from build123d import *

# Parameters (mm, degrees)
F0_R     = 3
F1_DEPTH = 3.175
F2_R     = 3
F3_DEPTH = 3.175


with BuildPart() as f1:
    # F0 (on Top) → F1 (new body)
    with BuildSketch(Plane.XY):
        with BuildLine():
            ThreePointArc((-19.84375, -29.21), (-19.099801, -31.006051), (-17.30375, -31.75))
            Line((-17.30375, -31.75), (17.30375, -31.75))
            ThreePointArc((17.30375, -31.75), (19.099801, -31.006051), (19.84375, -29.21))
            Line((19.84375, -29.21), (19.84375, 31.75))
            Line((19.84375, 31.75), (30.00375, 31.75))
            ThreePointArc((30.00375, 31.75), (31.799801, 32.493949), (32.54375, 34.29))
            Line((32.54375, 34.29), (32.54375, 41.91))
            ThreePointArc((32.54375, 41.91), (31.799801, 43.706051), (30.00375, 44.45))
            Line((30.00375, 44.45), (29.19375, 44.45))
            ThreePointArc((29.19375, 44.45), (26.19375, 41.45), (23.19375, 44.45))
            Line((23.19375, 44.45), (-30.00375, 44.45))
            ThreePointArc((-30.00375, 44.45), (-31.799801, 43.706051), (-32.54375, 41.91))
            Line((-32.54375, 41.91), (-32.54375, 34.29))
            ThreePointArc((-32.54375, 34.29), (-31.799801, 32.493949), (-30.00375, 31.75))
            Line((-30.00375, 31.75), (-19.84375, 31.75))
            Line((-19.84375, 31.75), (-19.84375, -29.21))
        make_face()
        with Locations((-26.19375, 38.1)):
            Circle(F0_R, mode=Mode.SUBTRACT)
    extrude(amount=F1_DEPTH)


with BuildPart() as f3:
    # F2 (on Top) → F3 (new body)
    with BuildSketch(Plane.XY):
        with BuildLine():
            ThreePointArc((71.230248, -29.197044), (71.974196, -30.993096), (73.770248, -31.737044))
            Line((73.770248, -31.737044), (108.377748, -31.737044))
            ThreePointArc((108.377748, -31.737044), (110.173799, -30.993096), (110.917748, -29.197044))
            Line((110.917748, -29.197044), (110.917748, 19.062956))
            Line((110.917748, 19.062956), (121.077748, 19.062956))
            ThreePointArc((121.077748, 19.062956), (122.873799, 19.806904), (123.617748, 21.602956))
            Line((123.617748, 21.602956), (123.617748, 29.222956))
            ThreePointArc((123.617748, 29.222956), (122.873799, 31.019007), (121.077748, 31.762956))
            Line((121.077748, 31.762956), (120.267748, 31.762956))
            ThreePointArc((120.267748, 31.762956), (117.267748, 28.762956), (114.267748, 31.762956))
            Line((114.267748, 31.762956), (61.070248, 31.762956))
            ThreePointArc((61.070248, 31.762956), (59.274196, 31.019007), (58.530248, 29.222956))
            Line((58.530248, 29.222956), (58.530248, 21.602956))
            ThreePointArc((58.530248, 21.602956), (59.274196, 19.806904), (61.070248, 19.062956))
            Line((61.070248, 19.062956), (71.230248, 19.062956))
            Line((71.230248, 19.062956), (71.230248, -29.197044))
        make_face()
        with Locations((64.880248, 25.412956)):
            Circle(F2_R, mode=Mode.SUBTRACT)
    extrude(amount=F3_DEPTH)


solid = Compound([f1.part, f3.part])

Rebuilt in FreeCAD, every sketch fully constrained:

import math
import FreeCAD as App
import Part
import Sketcher

V = App.Vector
Q = App.Units.Quantity

doc = App.newDocument("Part")
params = doc.addObject("Spreadsheet::Sheet", "Params")
for row, (alias, value) in enumerate([
    ("sketch1_radius", "0.1 in"),
    ("sketch1_width", "0.4 in"),
    ("sketch1_height", "2.4 in"),
    ("sketch1_height2", "0.3 in"),
    ("pad1_length", "0.125 in"),
    ("sketch2_radius", "0.0999999 in"),
    ("sketch2_width", "0.4 in"),
    ("sketch2_height", "1.9 in"),
    ("sketch2_height2", "0.3 in"),
    ("pad2_length", "0.125 in"),
], start=1):
    params.set(f"A{row}", alias)
    params.set(f"B{row}", "=" + value)
    params.setAlias(f"B{row}", alias)

body = doc.addObject("PartDesign::Body", "Body")

# Sketch on XY plane
sketch1 = doc.addObject("Sketcher::SketchObject", "Sketch")
body.addObject(sketch1)
sketch1.AttachmentSupport = (doc.XY_Plane, [""])
sketch1.MapMode = "FlatFace"
sketch1.addGeometry([
    Part.ArcOfCircle(Part.Circle(V(-17.3, -29.2, 0), V(0, 0, 1), 2.5), math.radians(-180), math.radians(-90)),  # 0
    Part.LineSegment(V(-17.3, -31.8, 0), V(17.3, -31.8, 0)),  # 1
    Part.ArcOfCircle(Part.Circle(V(17.3, -29.2, 0), V(0, 0, 1), 2.5), math.radians(-90), math.radians(0)),  # 2
    Part.LineSegment(V(19.8, -29.2, 0), V(19.8, 31.8, 0)),  # 3
    Part.LineSegment(V(19.8, 31.8, 0), V(30, 31.8, 0)),  # 4
    Part.ArcOfCircle(Part.Circle(V(30, 34.3, 0), V(0, 0, 1), 2.5), math.radians(-90), math.radians(0)),  # 5
    Part.LineSegment(V(32.5, 34.3, 0), V(32.5, 41.9, 0)),  # 6
    Part.ArcOfCircle(Part.Circle(V(30, 41.9, 0), V(0, 0, 1), 2.5), math.radians(0), math.radians(90)),  # 7
    Part.LineSegment(V(30, 44.5, 0), V(29.2, 44.5, 0)),  # 8
    Part.ArcOfCircle(Part.Circle(V(26.2, 44.5, 0), V(0, 0, 1), 3), math.radians(180), math.radians(360)),  # 9
    Part.LineSegment(V(23.2, 44.5, 0), V(-30, 44.5, 0)),  # 10
    Part.ArcOfCircle(Part.Circle(V(-30, 41.9, 0), V(0, 0, 1), 2.5), math.radians(90), math.radians(180)),  # 11
    Part.LineSegment(V(-32.5, 41.9, 0), V(-32.5, 34.3, 0)),  # 12
    Part.ArcOfCircle(Part.Circle(V(-30, 34.3, 0), V(0, 0, 1), 2.5), math.radians(-180), math.radians(-90)),  # 13
    Part.LineSegment(V(-30, 31.8, 0), V(-19.8, 31.8, 0)),  # 14
    Part.LineSegment(V(-19.8, 31.8, 0), V(-19.8, -29.2, 0)),  # 15
    Part.Circle(V(-26.2, 38.1, 0), V(0, 0, 1), 3),  # 16
], False)
sketch1.addConstraint([
    Sketcher.Constraint("Tangent", 0, 2, 1, 1),
    Sketcher.Constraint("Tangent", 1, 2, 2, 1),
    Sketcher.Constraint("Tangent", 2, 2, 3, 1),
    Sketcher.Constraint("Coincident", 3, 2, 4, 1),
    Sketcher.Constraint("Tangent", 4, 2, 5, 1),
    Sketcher.Constraint("Tangent", 5, 2, 6, 1),
    Sketcher.Constraint("Tangent", 6, 2, 7, 1),
    Sketcher.Constraint("Tangent", 7, 2, 8, 1),
    Sketcher.Constraint("Coincident", 8, 2, 9, 2),
    Sketcher.Constraint("Coincident", 9, 1, 10, 1),
    Sketcher.Constraint("Tangent", 10, 2, 11, 1),
    Sketcher.Constraint("Tangent", 11, 2, 12, 1),
    Sketcher.Constraint("Tangent", 12, 2, 13, 1),
    Sketcher.Constraint("Tangent", 13, 2, 14, 1),
    Sketcher.Constraint("Coincident", 14, 2, 15, 1),
    Sketcher.Constraint("Tangent", 15, 2, 0, 1),
    Sketcher.Constraint("Horizontal", 1),
    Sketcher.Constraint("Vertical", 3),
    Sketcher.Constraint("Horizontal", 4),
    Sketcher.Constraint("Vertical", 6),
    Sketcher.Constraint("Horizontal", 8),
    Sketcher.Constraint("Horizontal", 10),
    Sketcher.Constraint("Vertical", 12),
    Sketcher.Constraint("Horizontal", 14),
    Sketcher.Constraint("Vertical", 15),
    Sketcher.Constraint("Equal", 0, 2),
    Sketcher.Constraint("Equal", 2, 5),
    Sketcher.Constraint("Equal", 5, 7),
    Sketcher.Constraint("Equal", 7, 11),
    Sketcher.Constraint("Equal", 11, 13),
    Sketcher.Constraint("Equal", 9, 16),
    Sketcher.Constraint("Symmetric", 7, 3, 11, 3, -2),
    Sketcher.Constraint("Symmetric", 3, 2, 14, 2, -2),
    Sketcher.Constraint("Horizontal", 9, 3, 7, 2),
    Sketcher.Constraint("Radius", 0, Q("0.1 in")),
    Sketcher.Constraint("DistanceX", 4, 1, 4, 2, Q("0.4 in")),
    Sketcher.Constraint("DistanceY", 3, 1, 3, 2, Q("2.4 in")),
    Sketcher.Constraint("DistanceY", 6, 1, 6, 2, Q("0.3 in")),
    Sketcher.Constraint("DistanceY", -1, 1, 16, 3, Q("1.5 in")),
    Sketcher.Constraint("Diameter", 16, 6.0),
    Sketcher.Constraint("DistanceY", 0, 3, -1, 1, Q("1.15 in")),
    Sketcher.Constraint("DistanceX", 9, 3, 7, 3, Q("0.15 in")),
    Sketcher.Constraint("DistanceX", 11, 3, 16, 3, Q("0.15 in")),
    Sketcher.Constraint("DistanceX", 1, 1, 1, 2, Q("1.3625 in")),
])
sketch1.setExpression("Constraints[34]", "Params.sketch1_radius")
sketch1.setExpression("Constraints[35]", "Params.sketch1_width")
sketch1.setExpression("Constraints[36]", "Params.sketch1_height")
sketch1.setExpression("Constraints[37]", "Params.sketch1_height2")
pad1 = doc.addObject("PartDesign::Pad", "Pad")
body.addObject(pad1)
pad1.Profile = sketch1
pad1.setExpression("Length", "Params.pad1_length")
body2 = doc.addObject("PartDesign::Body", "Body001")

# Sketch on XY plane
sketch2 = doc.addObject("Sketcher::SketchObject", "Sketch001")
body2.addObject(sketch2)
sketch2.AttachmentSupport = (doc.getObject("XY_Plane001"), [""])
sketch2.MapMode = "FlatFace"
sketch2.addGeometry([
    Part.ArcOfCircle(Part.Circle(V(73.8, -29.2, 0), V(0, 0, 1), 2.5), math.radians(180), math.radians(270)),  # 0
    Part.LineSegment(V(73.8, -31.7, 0), V(108.4, -31.7, 0)),  # 1
    Part.ArcOfCircle(Part.Circle(V(108.4, -29.2, 0), V(0, 0, 1), 2.5), math.radians(-90), math.radians(0)),  # 2
    Part.LineSegment(V(110.9, -29.2, 0), V(110.9, 19.1, 0)),  # 3
    Part.LineSegment(V(110.9, 19.1, 0), V(121.1, 19.1, 0)),  # 4
    Part.ArcOfCircle(Part.Circle(V(121.1, 21.6, 0), V(0, 0, 1), 2.5), math.radians(-90), math.radians(0)),  # 5
    Part.LineSegment(V(123.6, 21.6, 0), V(123.6, 29.2, 0)),  # 6
    Part.ArcOfCircle(Part.Circle(V(121.1, 29.2, 0), V(0, 0, 1), 2.5), math.radians(0), math.radians(90)),  # 7
    Part.LineSegment(V(121.1, 31.8, 0), V(120.3, 31.8, 0)),  # 8
    Part.ArcOfCircle(Part.Circle(V(117.3, 31.8, 0), V(0, 0, 1), 3), math.radians(180), math.radians(360)),  # 9
    Part.LineSegment(V(114.3, 31.8, 0), V(61.1, 31.8, 0)),  # 10
    Part.ArcOfCircle(Part.Circle(V(61.1, 29.2, 0), V(0, 0, 1), 2.5), math.radians(90), math.radians(180)),  # 11
    Part.LineSegment(V(58.5, 29.2, 0), V(58.5, 21.6, 0)),  # 12
    Part.ArcOfCircle(Part.Circle(V(61.1, 21.6, 0), V(0, 0, 1), 2.5), math.radians(180), math.radians(270)),  # 13
    Part.LineSegment(V(61.1, 19.1, 0), V(71.2, 19.1, 0)),  # 14
    Part.LineSegment(V(71.2, 19.1, 0), V(71.2, -29.2, 0)),  # 15
    Part.Circle(V(64.9, 25.4, 0), V(0, 0, 1), 3),  # 16
], False)
sketch2.addConstraint([
    Sketcher.Constraint("Tangent", 0, 2, 1, 1),
    Sketcher.Constraint("Tangent", 1, 2, 2, 1),
    Sketcher.Constraint("Tangent", 2, 2, 3, 1),
    Sketcher.Constraint("Coincident", 3, 2, 4, 1),
    Sketcher.Constraint("Tangent", 4, 2, 5, 1),
    Sketcher.Constraint("Tangent", 5, 2, 6, 1),
    Sketcher.Constraint("Tangent", 6, 2, 7, 1),
    Sketcher.Constraint("Tangent", 7, 2, 8, 1),
    Sketcher.Constraint("Coincident", 8, 2, 9, 2),
    Sketcher.Constraint("Coincident", 9, 1, 10, 1),
    Sketcher.Constraint("Tangent", 10, 2, 11, 1),
    Sketcher.Constraint("Tangent", 11, 2, 12, 1),
    Sketcher.Constraint("Tangent", 12, 2, 13, 1),
    Sketcher.Constraint("Tangent", 13, 2, 14, 1),
    Sketcher.Constraint("Coincident", 14, 2, 15, 1),
    Sketcher.Constraint("Tangent", 15, 2, 0, 1),
    Sketcher.Constraint("Horizontal", 1),
    Sketcher.Constraint("Vertical", 3),
    Sketcher.Constraint("Horizontal", 4),
    Sketcher.Constraint("Vertical", 6),
    Sketcher.Constraint("Horizontal", 8),
    Sketcher.Constraint("Horizontal", 10),
    Sketcher.Constraint("Vertical", 12),
    Sketcher.Constraint("Horizontal", 14),
    Sketcher.Constraint("Vertical", 15),
    Sketcher.Constraint("Equal", 0, 2),
    Sketcher.Constraint("Equal", 2, 5),
    Sketcher.Constraint("Equal", 5, 7),
    Sketcher.Constraint("Equal", 7, 11),
    Sketcher.Constraint("Equal", 11, 13),
    Sketcher.Constraint("Equal", 9, 16),
    Sketcher.Constraint("Horizontal", 7, 3, 11, 3),
    Sketcher.Constraint("Horizontal", 5, 3, 13, 3),
    Sketcher.Constraint("Horizontal", 9, 3, 7, 2),
    Sketcher.Constraint("Equal", 4, 14),
    Sketcher.Constraint("Radius", 0, Q("0.0999999 in")),
    Sketcher.Constraint("DistanceX", 4, 1, 4, 2, Q("0.4 in")),
    Sketcher.Constraint("DistanceY", 3, 1, 3, 2, Q("1.9 in")),
    Sketcher.Constraint("DistanceY", 6, 1, 6, 2, Q("0.3 in")),
    Sketcher.Constraint("Diameter", 16, 6.0),
    Sketcher.Constraint("DistanceX", 9, 3, 7, 3, Q("0.15 in")),
    Sketcher.Constraint("DistanceX", 11, 3, 16, 3, Q("0.15 in")),
    Sketcher.Constraint("DistanceY", 16, 3, 11, 3, Q("0.15 in")),
    Sketcher.Constraint("DistanceX", 1, 1, 1, 2, Q("1.3625 in")),
    Sketcher.Constraint("DistanceX", -1, 1, 2, 3, 108.377749),
    Sketcher.Constraint("DistanceY", 0, 3, -1, 1, 29.197047),
])
sketch2.setExpression("Constraints[35]", "Params.sketch2_radius")
sketch2.setExpression("Constraints[36]", "Params.sketch2_width")
sketch2.setExpression("Constraints[37]", "Params.sketch2_height")
sketch2.setExpression("Constraints[38]", "Params.sketch2_height2")
pad2 = doc.addObject("PartDesign::Pad", "Pad001")
body2.addObject(pad2)
pad2.Profile = sketch2
pad2.setExpression("Length", "Params.pad2_length")

doc.recompute()
